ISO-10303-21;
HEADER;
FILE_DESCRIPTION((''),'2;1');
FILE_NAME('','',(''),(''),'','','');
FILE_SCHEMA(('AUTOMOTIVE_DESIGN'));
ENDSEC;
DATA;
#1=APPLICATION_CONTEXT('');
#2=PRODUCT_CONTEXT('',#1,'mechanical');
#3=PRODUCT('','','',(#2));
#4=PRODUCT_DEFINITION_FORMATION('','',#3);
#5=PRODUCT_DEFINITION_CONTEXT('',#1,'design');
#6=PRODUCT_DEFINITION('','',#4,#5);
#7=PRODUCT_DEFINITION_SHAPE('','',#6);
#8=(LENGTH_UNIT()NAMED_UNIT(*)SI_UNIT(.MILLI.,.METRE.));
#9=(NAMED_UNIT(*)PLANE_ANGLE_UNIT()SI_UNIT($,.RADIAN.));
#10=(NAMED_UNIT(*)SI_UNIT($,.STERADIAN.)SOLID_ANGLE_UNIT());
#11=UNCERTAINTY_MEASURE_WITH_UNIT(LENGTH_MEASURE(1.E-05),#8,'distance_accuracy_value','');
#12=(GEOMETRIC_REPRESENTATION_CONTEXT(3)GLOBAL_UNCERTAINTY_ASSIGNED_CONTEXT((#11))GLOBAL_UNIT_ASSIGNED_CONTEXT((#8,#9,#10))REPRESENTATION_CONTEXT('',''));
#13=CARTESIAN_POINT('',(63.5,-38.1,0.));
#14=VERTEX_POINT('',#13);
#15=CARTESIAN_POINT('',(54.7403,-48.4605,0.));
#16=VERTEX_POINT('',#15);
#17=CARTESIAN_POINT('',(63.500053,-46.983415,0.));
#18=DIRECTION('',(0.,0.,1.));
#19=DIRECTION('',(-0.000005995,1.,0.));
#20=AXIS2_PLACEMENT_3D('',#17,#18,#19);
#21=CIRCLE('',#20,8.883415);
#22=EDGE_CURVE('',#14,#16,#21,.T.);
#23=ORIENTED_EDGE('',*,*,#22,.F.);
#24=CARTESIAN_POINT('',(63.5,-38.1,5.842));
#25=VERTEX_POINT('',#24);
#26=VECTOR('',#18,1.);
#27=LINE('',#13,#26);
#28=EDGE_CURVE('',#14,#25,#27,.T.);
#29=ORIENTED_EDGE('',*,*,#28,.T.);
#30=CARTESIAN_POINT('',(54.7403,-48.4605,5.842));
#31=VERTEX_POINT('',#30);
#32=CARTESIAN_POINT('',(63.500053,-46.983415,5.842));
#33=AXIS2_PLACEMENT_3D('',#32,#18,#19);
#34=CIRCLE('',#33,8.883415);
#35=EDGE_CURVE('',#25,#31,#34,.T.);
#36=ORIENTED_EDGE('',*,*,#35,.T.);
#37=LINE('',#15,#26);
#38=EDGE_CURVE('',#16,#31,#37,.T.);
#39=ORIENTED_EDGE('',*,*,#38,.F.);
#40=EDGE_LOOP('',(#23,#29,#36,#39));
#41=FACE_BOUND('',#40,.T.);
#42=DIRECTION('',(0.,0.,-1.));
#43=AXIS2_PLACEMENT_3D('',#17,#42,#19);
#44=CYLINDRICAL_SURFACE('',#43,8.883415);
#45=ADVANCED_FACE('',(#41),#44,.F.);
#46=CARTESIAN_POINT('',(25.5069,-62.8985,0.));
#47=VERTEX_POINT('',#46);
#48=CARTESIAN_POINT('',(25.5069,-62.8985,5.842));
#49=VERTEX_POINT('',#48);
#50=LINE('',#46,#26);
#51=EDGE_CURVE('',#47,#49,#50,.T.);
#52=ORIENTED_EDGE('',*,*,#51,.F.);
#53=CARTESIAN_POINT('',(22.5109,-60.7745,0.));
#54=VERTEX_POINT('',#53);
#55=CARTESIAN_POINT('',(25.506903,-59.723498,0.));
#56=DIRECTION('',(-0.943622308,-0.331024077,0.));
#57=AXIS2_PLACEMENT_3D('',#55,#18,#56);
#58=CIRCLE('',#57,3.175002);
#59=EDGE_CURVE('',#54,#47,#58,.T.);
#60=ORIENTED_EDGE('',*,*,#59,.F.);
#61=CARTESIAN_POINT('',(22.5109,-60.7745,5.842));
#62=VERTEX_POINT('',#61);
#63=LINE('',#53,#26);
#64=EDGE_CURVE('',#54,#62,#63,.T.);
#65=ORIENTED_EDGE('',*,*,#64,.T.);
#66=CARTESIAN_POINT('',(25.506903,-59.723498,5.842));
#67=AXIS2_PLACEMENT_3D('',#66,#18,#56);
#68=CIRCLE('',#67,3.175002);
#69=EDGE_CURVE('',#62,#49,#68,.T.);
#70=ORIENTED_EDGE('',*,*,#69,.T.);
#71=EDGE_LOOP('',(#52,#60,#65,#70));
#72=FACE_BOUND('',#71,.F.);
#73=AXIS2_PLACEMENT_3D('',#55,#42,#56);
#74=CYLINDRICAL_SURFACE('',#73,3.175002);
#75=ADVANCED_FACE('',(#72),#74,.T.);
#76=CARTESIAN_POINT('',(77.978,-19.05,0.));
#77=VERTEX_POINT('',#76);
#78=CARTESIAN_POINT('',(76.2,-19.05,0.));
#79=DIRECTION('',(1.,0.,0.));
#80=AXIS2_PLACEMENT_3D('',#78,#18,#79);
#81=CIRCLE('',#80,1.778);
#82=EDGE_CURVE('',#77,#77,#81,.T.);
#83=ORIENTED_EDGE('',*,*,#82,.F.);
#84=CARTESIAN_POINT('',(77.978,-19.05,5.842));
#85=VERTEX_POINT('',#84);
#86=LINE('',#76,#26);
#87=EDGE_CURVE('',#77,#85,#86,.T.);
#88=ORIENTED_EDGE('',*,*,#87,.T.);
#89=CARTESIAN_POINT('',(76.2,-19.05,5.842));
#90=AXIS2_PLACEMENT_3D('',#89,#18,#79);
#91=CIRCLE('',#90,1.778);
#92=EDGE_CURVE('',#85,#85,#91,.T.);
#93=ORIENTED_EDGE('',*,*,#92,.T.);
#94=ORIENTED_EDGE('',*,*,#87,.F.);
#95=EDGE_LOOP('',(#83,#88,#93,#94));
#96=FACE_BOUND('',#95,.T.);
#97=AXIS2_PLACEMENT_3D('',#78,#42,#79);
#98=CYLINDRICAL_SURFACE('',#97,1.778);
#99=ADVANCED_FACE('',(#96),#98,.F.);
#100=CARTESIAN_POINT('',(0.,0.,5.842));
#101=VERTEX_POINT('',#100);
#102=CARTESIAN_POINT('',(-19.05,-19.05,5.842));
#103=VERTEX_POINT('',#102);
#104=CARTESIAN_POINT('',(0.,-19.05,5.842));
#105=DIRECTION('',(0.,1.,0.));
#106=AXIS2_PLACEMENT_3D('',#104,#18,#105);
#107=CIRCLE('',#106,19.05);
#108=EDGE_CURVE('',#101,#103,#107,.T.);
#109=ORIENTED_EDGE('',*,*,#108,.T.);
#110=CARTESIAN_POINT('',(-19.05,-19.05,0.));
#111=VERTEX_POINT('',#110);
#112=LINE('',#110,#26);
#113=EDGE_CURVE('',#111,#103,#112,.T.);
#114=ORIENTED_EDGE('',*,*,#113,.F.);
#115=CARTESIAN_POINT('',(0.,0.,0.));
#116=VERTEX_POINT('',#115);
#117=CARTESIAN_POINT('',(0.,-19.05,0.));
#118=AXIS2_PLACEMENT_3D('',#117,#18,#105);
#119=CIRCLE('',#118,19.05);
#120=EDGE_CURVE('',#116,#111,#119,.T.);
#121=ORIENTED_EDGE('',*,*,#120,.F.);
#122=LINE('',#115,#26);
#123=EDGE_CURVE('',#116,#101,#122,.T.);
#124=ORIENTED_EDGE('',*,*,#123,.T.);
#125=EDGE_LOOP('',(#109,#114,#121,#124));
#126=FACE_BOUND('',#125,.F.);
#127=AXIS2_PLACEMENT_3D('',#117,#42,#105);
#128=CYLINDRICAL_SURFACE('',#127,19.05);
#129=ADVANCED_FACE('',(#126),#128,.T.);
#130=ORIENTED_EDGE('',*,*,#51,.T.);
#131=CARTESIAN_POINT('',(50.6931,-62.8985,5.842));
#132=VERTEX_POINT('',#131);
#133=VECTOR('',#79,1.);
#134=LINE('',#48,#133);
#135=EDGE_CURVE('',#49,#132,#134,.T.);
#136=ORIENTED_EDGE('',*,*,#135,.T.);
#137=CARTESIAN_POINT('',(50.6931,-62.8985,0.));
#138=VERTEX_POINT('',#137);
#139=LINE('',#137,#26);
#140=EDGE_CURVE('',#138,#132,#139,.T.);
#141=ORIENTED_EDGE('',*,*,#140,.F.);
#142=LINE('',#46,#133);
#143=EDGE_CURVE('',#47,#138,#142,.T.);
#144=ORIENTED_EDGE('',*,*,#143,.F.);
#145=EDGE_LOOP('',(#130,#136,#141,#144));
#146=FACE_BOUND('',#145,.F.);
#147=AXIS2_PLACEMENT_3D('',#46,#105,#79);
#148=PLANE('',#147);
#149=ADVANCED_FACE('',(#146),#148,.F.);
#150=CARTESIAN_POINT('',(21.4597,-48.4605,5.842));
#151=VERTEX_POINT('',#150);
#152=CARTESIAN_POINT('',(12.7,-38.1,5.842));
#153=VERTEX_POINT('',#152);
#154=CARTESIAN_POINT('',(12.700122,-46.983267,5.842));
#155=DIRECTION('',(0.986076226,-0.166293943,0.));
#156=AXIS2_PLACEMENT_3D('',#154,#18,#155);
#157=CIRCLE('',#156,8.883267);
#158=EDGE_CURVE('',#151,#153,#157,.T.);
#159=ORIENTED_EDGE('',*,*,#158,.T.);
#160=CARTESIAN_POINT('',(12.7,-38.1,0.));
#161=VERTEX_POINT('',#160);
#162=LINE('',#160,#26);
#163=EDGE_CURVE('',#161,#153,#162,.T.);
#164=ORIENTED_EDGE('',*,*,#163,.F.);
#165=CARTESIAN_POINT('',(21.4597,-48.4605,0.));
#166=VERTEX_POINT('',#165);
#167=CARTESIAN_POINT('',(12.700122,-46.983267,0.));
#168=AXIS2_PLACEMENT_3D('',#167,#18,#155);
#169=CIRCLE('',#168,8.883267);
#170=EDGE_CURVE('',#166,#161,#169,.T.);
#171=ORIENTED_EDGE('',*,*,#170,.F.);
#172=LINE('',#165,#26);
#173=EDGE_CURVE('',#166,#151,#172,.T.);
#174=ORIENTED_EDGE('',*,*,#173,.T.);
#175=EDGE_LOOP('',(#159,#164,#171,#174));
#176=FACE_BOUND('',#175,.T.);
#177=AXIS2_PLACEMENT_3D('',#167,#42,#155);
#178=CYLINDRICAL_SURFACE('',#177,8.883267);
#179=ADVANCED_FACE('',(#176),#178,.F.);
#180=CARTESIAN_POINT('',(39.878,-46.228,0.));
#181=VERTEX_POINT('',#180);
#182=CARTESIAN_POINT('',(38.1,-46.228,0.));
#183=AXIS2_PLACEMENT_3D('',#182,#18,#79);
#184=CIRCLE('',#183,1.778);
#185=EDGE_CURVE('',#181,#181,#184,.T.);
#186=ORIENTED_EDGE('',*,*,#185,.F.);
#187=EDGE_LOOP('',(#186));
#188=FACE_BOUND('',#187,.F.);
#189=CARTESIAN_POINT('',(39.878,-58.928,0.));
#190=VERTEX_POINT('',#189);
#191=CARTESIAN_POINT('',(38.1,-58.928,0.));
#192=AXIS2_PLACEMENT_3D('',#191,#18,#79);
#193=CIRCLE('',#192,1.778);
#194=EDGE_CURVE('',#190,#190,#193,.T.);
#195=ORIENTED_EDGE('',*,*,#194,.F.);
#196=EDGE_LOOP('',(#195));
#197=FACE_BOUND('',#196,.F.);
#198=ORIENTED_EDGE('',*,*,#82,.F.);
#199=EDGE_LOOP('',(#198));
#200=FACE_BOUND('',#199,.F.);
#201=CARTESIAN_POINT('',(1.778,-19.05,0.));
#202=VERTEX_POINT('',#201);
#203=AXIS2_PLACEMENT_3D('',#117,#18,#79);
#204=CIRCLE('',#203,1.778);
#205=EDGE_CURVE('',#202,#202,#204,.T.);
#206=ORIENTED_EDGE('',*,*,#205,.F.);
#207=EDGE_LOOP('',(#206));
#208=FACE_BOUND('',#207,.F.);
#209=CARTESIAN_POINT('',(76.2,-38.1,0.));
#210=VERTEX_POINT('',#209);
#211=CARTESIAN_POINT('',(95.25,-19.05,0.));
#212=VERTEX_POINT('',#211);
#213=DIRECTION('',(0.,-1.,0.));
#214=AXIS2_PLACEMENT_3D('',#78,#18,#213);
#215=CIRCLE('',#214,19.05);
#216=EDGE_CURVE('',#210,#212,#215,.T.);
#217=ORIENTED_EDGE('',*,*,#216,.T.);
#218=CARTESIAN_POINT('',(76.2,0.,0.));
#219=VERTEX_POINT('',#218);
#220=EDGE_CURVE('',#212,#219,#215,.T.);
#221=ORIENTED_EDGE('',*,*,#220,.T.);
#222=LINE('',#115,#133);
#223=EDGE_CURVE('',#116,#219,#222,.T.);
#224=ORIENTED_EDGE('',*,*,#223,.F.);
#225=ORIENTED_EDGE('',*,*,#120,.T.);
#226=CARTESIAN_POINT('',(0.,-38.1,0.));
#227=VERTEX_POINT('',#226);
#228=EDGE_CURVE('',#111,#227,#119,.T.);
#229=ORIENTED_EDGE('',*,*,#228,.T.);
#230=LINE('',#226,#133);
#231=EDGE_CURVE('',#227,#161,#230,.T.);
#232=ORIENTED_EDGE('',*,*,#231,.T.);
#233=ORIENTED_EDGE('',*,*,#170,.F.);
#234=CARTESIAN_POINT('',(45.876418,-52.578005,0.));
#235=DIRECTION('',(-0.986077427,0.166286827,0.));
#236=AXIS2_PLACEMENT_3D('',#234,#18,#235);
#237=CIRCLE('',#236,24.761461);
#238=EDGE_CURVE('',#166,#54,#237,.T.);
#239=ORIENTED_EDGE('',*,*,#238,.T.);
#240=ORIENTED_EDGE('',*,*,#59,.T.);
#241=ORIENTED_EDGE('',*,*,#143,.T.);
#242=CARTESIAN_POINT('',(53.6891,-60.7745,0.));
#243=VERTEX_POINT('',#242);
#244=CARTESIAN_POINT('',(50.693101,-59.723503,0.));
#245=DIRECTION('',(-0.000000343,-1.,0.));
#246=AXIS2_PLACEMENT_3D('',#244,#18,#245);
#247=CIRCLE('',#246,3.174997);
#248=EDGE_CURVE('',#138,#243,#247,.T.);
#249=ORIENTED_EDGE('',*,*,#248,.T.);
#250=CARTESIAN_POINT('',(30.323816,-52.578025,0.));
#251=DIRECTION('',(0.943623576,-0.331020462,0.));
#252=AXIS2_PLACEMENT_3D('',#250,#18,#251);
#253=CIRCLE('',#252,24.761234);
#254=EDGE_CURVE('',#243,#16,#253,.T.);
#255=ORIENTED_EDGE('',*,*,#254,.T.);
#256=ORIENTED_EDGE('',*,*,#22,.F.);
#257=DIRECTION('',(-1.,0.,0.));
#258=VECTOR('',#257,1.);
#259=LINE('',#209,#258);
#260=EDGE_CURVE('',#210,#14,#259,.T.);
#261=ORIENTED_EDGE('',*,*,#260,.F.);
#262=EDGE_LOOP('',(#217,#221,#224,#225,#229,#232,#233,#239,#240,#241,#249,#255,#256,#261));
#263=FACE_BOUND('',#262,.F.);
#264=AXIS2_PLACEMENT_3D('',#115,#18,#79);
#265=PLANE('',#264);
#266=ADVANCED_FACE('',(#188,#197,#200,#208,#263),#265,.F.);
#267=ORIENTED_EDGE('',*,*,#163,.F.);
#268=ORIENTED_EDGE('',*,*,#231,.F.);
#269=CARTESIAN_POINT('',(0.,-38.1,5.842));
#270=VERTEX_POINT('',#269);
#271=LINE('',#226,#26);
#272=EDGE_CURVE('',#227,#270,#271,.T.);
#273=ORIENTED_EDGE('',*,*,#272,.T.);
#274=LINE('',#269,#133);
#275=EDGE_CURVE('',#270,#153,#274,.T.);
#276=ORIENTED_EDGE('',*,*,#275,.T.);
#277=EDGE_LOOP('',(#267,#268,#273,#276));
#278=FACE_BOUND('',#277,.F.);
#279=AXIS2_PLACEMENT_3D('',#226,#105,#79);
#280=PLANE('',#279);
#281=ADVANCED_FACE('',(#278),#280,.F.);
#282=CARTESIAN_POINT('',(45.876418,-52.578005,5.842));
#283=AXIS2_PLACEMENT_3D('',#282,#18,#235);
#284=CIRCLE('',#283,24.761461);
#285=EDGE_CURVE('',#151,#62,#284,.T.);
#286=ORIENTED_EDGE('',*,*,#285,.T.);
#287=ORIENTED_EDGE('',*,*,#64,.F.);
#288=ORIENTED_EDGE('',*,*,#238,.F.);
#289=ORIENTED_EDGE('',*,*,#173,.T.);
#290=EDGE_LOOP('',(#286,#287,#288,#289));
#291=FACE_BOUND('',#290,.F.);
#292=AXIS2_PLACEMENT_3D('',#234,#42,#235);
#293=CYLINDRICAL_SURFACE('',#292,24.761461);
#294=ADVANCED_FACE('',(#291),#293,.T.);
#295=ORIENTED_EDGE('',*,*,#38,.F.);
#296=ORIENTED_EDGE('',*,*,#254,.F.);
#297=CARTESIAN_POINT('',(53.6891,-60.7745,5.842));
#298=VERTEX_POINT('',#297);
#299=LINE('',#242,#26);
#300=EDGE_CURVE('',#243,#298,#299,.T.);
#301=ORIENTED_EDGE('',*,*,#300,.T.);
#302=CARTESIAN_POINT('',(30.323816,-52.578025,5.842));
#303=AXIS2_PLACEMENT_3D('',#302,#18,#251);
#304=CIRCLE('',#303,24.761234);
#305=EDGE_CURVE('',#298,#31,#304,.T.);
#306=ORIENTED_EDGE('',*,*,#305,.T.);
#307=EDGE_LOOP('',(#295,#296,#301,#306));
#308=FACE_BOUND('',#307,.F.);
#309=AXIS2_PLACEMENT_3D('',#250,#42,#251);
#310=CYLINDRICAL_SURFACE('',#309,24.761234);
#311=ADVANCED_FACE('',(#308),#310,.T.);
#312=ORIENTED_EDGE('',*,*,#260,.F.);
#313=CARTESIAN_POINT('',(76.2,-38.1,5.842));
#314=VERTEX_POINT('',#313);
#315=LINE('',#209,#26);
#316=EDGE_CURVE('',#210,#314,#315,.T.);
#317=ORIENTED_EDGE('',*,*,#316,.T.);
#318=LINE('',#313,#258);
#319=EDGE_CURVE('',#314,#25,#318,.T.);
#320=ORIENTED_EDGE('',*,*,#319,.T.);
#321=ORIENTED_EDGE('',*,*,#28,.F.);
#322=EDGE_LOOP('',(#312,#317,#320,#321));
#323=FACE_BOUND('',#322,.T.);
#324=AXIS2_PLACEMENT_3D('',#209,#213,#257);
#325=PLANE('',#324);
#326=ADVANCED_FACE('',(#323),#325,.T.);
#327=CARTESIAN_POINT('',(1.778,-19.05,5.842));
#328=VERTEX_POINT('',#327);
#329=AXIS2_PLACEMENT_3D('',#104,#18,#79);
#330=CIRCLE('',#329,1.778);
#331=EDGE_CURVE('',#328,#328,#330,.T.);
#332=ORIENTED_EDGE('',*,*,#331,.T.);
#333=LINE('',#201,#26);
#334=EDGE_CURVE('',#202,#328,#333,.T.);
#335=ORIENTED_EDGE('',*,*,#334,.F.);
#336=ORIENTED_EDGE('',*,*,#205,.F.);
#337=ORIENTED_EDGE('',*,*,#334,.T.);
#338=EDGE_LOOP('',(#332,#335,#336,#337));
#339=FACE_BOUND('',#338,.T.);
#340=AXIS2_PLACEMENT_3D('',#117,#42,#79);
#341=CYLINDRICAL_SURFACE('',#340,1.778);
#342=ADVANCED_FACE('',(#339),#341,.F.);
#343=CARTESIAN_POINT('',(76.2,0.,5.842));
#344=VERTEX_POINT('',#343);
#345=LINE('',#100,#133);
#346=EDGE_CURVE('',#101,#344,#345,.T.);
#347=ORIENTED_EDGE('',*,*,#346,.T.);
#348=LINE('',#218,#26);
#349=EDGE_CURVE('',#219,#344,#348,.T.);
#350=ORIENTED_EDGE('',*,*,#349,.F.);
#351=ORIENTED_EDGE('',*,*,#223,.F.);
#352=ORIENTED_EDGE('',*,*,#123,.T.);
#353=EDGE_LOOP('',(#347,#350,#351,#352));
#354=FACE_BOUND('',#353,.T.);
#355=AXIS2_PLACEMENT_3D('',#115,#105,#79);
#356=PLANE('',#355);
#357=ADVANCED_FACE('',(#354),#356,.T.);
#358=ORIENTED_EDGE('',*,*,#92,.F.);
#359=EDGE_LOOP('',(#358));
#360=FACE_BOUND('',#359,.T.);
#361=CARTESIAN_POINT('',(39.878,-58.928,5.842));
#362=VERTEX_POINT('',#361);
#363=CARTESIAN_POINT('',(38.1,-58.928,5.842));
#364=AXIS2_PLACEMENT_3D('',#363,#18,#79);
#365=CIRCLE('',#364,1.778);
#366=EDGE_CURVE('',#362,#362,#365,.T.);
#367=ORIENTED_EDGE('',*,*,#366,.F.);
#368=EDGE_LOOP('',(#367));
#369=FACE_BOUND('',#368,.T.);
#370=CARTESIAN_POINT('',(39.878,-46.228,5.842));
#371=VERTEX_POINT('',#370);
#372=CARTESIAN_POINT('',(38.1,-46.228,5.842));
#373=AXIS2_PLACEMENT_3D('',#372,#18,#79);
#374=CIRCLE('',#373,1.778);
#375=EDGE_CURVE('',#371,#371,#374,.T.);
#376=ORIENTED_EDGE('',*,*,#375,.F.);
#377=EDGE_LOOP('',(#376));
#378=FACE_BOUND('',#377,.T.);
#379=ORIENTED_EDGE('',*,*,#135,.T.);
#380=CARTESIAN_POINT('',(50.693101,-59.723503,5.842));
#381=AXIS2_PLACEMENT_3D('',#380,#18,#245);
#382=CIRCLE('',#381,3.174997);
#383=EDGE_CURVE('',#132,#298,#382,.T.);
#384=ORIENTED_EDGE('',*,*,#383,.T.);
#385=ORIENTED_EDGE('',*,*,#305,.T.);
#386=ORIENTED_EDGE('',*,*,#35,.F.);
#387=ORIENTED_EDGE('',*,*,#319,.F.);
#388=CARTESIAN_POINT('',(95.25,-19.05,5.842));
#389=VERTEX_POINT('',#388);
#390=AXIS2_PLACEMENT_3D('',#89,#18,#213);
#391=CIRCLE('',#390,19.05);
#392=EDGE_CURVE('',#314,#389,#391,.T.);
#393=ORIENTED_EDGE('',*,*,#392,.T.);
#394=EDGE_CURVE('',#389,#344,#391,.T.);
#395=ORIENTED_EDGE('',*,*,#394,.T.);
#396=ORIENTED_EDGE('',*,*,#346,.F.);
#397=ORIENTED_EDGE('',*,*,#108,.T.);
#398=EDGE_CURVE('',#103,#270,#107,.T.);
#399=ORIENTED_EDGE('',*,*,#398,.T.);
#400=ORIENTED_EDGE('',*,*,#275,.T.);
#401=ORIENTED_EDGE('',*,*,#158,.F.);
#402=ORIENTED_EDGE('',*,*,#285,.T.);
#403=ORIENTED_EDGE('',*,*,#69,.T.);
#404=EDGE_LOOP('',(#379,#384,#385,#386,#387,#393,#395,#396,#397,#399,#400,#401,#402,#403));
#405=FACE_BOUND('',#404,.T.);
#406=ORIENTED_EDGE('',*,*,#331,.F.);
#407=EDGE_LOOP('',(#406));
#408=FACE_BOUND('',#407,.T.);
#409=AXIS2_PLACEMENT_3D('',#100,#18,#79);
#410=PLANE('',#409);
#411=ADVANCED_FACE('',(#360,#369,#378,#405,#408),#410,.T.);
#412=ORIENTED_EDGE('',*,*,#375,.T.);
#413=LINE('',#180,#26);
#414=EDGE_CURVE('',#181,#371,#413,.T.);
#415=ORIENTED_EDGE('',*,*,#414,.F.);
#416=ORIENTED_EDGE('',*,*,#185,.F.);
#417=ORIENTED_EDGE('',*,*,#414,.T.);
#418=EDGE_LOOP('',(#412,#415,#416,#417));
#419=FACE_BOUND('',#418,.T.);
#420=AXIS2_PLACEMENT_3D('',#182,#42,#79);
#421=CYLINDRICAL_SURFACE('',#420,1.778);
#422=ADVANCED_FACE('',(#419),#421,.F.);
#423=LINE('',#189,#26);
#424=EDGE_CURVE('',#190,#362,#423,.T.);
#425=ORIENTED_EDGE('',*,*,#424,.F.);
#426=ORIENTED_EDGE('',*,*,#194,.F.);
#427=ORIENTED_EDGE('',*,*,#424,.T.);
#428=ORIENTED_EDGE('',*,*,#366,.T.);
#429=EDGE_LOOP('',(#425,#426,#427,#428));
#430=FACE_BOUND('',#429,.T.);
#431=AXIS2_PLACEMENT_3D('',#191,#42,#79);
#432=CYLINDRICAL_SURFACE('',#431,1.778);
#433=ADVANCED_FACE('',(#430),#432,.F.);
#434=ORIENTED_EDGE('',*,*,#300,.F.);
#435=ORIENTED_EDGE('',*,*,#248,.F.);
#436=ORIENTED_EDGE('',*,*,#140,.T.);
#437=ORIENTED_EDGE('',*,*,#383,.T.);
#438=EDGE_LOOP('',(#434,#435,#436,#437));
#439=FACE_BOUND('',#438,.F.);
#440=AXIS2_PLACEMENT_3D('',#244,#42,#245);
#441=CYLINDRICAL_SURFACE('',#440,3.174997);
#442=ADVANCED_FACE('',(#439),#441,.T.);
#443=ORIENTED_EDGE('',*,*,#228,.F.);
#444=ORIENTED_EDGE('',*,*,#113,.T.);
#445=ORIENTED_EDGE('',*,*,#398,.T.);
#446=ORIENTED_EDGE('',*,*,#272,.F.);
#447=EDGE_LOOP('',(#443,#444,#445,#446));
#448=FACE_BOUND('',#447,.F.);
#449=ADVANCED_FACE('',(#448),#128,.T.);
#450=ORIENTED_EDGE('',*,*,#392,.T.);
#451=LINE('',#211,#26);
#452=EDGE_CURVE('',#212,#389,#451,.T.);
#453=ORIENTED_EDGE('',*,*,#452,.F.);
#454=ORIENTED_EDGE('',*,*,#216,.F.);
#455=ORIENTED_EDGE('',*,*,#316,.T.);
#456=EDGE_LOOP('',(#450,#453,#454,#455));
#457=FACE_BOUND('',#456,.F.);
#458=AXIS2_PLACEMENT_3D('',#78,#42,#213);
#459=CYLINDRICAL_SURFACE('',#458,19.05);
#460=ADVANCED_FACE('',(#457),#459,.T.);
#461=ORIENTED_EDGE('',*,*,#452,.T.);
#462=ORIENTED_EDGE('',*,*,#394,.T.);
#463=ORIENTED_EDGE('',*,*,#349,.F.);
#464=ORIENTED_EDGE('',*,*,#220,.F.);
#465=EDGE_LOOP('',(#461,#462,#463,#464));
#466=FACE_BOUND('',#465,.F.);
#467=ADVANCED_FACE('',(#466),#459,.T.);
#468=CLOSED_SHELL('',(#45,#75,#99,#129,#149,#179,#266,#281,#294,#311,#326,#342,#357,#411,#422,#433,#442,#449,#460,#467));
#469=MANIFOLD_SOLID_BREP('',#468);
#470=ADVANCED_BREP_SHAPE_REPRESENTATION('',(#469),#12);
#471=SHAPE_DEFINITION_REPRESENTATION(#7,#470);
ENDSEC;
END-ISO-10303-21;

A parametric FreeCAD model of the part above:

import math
import FreeCAD as App
import Part
import Sketcher
Q = App.Units.Quantity

doc = App.newDocument("Part")
body = doc.addObject("PartDesign::Body", "Body")

# Sketch on XY plane
sketch1 = body.newObject("Sketcher::SketchObject", "Sketch")
sketch1.AttachmentSupport = (doc.getObject("XY_Plane"), [""])
sketch1.MapMode = "FlatFace"
sketch1.addGeometry([
    Part.LineSegment(App.Vector(76.2, 0, 0), App.Vector(0, 0, 0)),  # 0
    Part.ArcOfCircle(Part.Circle(App.Vector(0, -19.1, 0), App.Vector(0, 0, 1), 19.1), math.radians(90), math.radians(270)),  # 1
    Part.LineSegment(App.Vector(0, -38.1, 0), App.Vector(12.7, -38.1, 0)),  # 2
    Part.ArcOfCircle(Part.Circle(App.Vector(12.7, -47, 0), App.Vector(0, 0, 1), 8.9), math.radians(-10), math.radians(90)),  # 3
    Part.ArcOfCircle(Part.Circle(App.Vector(45.9, -52.6, 0), App.Vector(0, 0, 1), 24.8), math.radians(170), math.radians(199)),  # 4
    Part.ArcOfCircle(Part.Circle(App.Vector(25.5, -59.7, 0), App.Vector(0, 0, 1), 3.2), math.radians(-161), math.radians(-90)),  # 5
    Part.LineSegment(App.Vector(25.5, -62.9, 0), App.Vector(50.7, -62.9, 0)),  # 6
    Part.ArcOfCircle(Part.Circle(App.Vector(50.7, -59.7, 0), App.Vector(0, 0, 1), 3.2), math.radians(-90), math.radians(-19)),  # 7
    Part.ArcOfCircle(Part.Circle(App.Vector(30.3, -52.6, 0), App.Vector(0, 0, 1), 24.8), math.radians(-19), math.radians(10)),  # 8
    Part.ArcOfCircle(Part.Circle(App.Vector(63.5, -47, 0), App.Vector(0, 0, 1), 8.9), math.radians(90), math.radians(190)),  # 9
    Part.LineSegment(App.Vector(63.5, -38.1, 0), App.Vector(76.2, -38.1, 0)),  # 10
    Part.ArcOfCircle(Part.Circle(App.Vector(76.2, -19.1, 0), App.Vector(0, 0, 1), 19.1), math.radians(-90), math.radians(90)),  # 11
    Part.Circle(App.Vector(38.1, -58.9, 0), App.Vector(0, 0, 1), 1.8),  # 12
    Part.Circle(App.Vector(38.1, -46.2, 0), App.Vector(0, 0, 1), 1.8),  # 13
    Part.Circle(App.Vector(0, -19.1, 0), App.Vector(0, 0, 1), 1.8),  # 14
    Part.Circle(App.Vector(76.2, -19.1, 0), App.Vector(0, 0, 1), 1.8),  # 15
], False)
sketch1.addConstraint([
    Sketcher.Constraint("Tangent", 0, 2, 1, 1),
    Sketcher.Constraint("Tangent", 1, 2, 2, 1),
    Sketcher.Constraint("Tangent", 2, 2, 3, 2),
    Sketcher.Constraint("Tangent", 3, 1, 4, 1),
    Sketcher.Constraint("Tangent", 4, 2, 5, 1),
    Sketcher.Constraint("Tangent", 5, 2, 6, 1),
    Sketcher.Constraint("Tangent", 6, 2, 7, 1),
    Sketcher.Constraint("Tangent", 7, 2, 8, 1),
    Sketcher.Constraint("Tangent", 8, 2, 9, 2),
    Sketcher.Constraint("Tangent", 9, 1, 10, 1),
    Sketcher.Constraint("Tangent", 10, 2, 11, 1),
    Sketcher.Constraint("Tangent", 11, 2, 0, 1),
    Sketcher.Constraint("Horizontal", 0),
    Sketcher.Constraint("Horizontal", 2),
    Sketcher.Constraint("Horizontal", 6),
    Sketcher.Constraint("Horizontal", 10),
    Sketcher.Constraint("Coincident", 0, 2, -1, 1),
    Sketcher.Constraint("Coincident", 14, 3, 1, 3),
    Sketcher.Constraint("Coincident", 15, 3, 11, 3),
    Sketcher.Constraint("Equal", 5, 7),
    Sketcher.Constraint("Equal", 4, 8),
    Sketcher.Constraint("Equal", 3, 9),
    Sketcher.Constraint("Equal", 1, 11),
    Sketcher.Constraint("Equal", 12, 13),
    Sketcher.Constraint("Equal", 13, 14),
    Sketcher.Constraint("Equal", 14, 15),
    Sketcher.Constraint("Horizontal", 4, 3, 8, 3),
    Sketcher.Constraint("Vertical", 12, 3, 13, 3),
    Sketcher.Constraint("Equal", 2, 10),
    Sketcher.Constraint("Diameter", 12, Q("0.14 in")),
    Sketcher.Constraint("DistanceX", 0, 2, 0, 1, Q("3 in")),
    Sketcher.Constraint("Radius", 1, Q("0.75 in")),
    Sketcher.Constraint("DistanceX", 2, 1, 2, 2, Q("0.5 in")),
    Sketcher.Constraint("Radius", 5, Q("0.125 in")),
    Sketcher.Constraint("DistanceX", -1, 1, 12, 3, Q("1.5 in")),
    Sketcher.Constraint("DistanceY", 12, 3, 13, 3, Q("0.5 in")),
    Sketcher.Constraint("DistanceY", 12, 3, 4, 3, Q("0.25 in")),
    Sketcher.Constraint("DistanceY", 4, 3, -1, 1, Q("2.07 in")),
    Sketcher.Constraint("Radius", 3, Q("8.8834 mm")),
    Sketcher.Constraint("Radius", 4, Q("24.7613 mm")),
    Sketcher.Constraint("DistanceX", 6, 1, 6, 2, Q("25.1862 mm")),
])
pad1 = body.newObject("PartDesign::Pad", "Pad")
pad1.Profile = sketch1
pad1.Length = Q("0.23 in")

doc.recompute()
